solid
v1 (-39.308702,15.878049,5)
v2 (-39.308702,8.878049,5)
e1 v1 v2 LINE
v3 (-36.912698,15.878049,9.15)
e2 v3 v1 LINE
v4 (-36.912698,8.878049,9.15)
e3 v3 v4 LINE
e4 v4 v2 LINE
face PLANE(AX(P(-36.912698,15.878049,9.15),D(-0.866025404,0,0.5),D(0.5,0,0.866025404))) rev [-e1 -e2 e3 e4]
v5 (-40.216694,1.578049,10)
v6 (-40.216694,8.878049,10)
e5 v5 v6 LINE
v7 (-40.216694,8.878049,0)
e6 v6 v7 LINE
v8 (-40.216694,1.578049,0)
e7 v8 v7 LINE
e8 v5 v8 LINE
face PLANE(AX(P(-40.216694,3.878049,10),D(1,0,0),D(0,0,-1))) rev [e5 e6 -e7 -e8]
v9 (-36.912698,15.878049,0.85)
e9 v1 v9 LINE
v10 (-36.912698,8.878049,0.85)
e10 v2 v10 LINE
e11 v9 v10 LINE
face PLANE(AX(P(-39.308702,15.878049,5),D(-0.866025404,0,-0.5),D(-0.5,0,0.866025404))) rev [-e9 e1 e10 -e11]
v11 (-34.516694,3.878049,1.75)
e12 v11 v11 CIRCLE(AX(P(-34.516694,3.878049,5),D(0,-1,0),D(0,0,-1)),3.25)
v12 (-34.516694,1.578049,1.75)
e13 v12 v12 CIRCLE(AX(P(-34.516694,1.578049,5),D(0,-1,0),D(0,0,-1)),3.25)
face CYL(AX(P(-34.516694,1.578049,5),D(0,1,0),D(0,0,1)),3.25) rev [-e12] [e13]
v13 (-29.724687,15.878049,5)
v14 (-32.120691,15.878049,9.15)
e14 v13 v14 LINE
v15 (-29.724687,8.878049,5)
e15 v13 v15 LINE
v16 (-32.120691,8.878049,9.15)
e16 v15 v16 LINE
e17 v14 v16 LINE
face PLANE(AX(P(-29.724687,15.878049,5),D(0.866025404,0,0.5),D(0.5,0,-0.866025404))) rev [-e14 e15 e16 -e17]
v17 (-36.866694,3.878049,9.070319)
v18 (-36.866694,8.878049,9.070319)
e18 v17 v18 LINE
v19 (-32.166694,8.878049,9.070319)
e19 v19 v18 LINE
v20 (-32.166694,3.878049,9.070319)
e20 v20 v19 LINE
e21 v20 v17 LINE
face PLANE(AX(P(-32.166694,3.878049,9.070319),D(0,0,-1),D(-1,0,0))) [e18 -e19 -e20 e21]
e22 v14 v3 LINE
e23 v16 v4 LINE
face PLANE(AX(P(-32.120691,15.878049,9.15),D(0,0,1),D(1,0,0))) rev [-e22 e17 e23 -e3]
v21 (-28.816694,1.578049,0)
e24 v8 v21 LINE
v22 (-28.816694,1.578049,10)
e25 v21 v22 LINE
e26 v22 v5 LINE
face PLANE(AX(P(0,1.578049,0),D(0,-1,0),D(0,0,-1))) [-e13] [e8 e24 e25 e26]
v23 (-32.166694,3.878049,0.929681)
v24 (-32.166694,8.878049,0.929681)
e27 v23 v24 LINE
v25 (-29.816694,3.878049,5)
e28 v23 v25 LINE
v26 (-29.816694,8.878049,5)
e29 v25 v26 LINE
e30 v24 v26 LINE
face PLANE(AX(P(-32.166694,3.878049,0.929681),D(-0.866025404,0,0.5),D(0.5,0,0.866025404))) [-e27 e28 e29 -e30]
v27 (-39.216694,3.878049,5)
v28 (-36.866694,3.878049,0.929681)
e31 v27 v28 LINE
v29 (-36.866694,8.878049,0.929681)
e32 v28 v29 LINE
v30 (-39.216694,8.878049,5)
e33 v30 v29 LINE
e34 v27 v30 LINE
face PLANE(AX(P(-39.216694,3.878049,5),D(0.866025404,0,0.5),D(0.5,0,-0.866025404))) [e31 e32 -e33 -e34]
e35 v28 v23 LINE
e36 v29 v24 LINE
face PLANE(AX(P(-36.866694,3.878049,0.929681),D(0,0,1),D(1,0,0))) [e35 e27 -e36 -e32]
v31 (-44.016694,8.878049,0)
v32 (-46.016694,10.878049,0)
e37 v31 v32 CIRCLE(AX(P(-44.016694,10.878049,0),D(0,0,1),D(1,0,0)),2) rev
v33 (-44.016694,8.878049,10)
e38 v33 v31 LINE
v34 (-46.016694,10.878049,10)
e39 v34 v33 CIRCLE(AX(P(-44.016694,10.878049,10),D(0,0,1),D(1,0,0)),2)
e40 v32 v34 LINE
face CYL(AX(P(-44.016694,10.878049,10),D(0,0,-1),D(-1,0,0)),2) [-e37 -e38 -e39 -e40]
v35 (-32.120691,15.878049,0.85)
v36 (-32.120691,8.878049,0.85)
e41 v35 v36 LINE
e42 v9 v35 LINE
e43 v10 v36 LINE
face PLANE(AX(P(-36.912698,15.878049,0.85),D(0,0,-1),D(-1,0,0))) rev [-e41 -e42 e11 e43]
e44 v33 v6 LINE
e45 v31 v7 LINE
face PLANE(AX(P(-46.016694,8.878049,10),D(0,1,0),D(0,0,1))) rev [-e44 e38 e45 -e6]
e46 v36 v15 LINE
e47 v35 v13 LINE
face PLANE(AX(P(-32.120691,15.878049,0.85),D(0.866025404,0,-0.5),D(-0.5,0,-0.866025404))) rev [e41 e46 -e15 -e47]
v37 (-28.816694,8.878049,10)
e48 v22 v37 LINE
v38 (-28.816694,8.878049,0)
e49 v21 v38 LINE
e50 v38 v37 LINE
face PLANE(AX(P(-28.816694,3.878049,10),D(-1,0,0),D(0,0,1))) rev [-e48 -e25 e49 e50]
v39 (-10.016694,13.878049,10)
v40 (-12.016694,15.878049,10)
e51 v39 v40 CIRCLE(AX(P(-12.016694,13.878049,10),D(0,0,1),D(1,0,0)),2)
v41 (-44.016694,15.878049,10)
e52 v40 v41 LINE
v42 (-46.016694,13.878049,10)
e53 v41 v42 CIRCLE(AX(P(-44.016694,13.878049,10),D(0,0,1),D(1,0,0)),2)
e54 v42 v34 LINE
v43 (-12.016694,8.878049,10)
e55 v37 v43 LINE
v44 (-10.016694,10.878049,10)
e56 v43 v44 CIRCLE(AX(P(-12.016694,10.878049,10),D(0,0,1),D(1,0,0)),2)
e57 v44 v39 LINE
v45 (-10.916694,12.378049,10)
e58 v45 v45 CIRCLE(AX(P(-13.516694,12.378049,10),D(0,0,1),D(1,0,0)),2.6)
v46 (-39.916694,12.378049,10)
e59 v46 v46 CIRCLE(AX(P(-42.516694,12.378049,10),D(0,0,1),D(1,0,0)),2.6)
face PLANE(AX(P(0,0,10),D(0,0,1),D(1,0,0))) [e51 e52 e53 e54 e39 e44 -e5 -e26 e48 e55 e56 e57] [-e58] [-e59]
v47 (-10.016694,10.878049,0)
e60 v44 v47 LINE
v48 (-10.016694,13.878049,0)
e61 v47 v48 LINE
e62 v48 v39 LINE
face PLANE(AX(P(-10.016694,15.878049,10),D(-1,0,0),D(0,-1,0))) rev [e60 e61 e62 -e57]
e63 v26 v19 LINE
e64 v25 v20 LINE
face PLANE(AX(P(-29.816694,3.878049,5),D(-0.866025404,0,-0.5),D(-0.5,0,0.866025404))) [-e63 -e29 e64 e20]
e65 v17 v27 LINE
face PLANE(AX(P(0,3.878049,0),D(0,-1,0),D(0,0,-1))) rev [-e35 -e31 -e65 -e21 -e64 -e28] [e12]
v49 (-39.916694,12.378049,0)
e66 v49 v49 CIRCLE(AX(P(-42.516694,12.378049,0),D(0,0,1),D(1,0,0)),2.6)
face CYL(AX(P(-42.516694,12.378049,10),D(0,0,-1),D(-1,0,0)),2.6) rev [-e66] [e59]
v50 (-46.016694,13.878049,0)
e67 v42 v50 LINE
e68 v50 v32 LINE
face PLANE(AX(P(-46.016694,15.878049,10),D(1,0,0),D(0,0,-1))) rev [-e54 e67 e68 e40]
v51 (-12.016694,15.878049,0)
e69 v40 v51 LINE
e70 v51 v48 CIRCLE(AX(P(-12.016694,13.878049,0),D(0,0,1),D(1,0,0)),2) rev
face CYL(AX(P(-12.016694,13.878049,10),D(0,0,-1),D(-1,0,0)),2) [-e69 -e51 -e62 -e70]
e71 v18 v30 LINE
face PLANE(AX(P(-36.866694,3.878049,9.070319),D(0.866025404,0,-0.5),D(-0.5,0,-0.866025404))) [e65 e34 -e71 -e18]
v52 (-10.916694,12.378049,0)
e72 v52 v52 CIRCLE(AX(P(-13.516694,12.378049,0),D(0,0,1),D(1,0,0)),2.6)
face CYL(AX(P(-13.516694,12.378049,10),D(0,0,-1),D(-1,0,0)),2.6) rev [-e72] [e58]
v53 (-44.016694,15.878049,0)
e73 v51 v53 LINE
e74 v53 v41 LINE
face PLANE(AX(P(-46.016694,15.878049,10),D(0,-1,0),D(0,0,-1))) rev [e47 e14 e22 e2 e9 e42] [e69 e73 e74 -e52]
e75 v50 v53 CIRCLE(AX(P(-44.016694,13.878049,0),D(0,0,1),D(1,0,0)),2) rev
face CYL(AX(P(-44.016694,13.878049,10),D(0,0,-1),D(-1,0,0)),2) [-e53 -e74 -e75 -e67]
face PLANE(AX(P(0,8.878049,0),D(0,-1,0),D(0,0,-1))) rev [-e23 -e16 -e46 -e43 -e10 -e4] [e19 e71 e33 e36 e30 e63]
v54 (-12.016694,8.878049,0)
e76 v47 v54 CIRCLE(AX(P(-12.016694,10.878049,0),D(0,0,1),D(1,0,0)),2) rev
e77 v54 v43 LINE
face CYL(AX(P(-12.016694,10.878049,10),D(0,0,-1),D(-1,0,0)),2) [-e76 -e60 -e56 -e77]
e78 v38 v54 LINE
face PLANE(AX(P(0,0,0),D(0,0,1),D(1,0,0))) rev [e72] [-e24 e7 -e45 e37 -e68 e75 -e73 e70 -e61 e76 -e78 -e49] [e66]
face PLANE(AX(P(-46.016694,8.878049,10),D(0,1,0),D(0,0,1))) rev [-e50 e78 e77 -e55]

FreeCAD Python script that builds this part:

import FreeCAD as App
import Part
import Sketcher

V = App.Vector
Q = App.Units.Quantity


def edges_at(feature, points):
    """Names of the edges that pass closest to the given points."""
    edges = feature.Shape.Edges
    near = lambda p: min(range(len(edges)), key=lambda i: edges[i].distToShape(Part.Vertex(*p))[0])
    return sorted({f"Edge{near(p) + 1}" for p in points})


def add_polygon(sketch, points):
    """Adds a closed chain of lines whose ends are joined by coincident constraints."""
    first, n = sketch.GeometryCount, len(points)
    for a, b in zip(points, points[1:] + points[:1]):
        sketch.addGeometry(Part.LineSegment(App.Vector(*a, 0), App.Vector(*b, 0)), False)
    for i in range(n):
        sketch.addConstraint(Sketcher.Constraint("Coincident", first + i, 2, first + (i + 1) % n, 1))

doc = App.newDocument("Part")
params = doc.addObject("Spreadsheet::Sheet", "Params")
for row, (alias, value) in enumerate([
    ("sketch1_diameter", "5.2 mm"),
    ("sketch1_width", "36 mm"),
    ("sketch1_height", "7 mm"),
    ("pad1_length", "10 mm"),
    ("pocket1_length", "7 mm"),
    ("sketch3_height", "10 mm"),
    ("sketch3_width", "11.4 mm"),
    ("sketch3_width2", "4.7 mm"),
    ("pad2_length", "5 mm"),
    ("fillet_radius", "2 mm"),
    ("sketch4_diameter", "6.5 mm"),
    ("sketch4_height", "10 mm"),
    ("sketch4_width", "11.4 mm"),
    ("pad3_length", "2.3 mm"),
], start=1):
    params.set(f"A{row}", alias)
    params.set(f"B{row}", "=" + value)
    params.setAlias(f"B{row}", alias)

body = doc.addObject("PartDesign::Body", "Body")

sketch1 = doc.addObject("Sketcher::SketchObject", "Sketch")
body.addObject(sketch1)
sketch1.AttachmentSupport = (doc.XY_Plane, [""])
sketch1.MapMode = "FlatFace"
add_polygon(sketch1, [(-46, 15.9), (-46, 8.9), (-10, 8.9), (-10, 15.9)])
sketch1.addGeometry(Part.Circle(V(-42.5, 12.4, 0), V(0, 0, 1), 2.6), False)
sketch1.addGeometry(Part.Circle(V(-13.5, 12.4, 0), V(0, 0, 1), 2.6), False)
sketch1.addConstraint([
    Sketcher.Constraint("Vertical", 0),
    Sketcher.Constraint("Horizontal", 1),
    Sketcher.Constraint("Vertical", 2),
    Sketcher.Constraint("Horizontal", 3),
    Sketcher.Constraint("Equal", 4, 5),
    Sketcher.Constraint("Horizontal", 4, 3, 5, 3),
    Sketcher.Constraint("Diameter", 4, Q("5.2 mm")),
    Sketcher.Constraint("DistanceX", 1, 1, 1, 2, Q("36 mm")),
    Sketcher.Constraint("DistanceY", 0, 2, 0, 1, Q("7 mm")),
    Sketcher.Constraint("DistanceX", 4, 3, 5, 3, Q("29 mm")),
    Sketcher.Constraint("DistanceX", 0, 2, 4, 3, Q("3.5 mm")),
    Sketcher.Constraint("DistanceY", 0, 2, 4, 3, Q("3.5 mm")),
    Sketcher.Constraint("DistanceY", -1, 1, 4, 3, Q("12.378049 mm")),
    Sketcher.Constraint("DistanceX", 4, 3, -1, 1, Q("42.516694 mm")),
])
sketch1.setExpression("Constraints[10]", "Params.sketch1_diameter")
sketch1.setExpression("Constraints[11]", "Params.sketch1_width")
sketch1.setExpression("Constraints[12]", "Params.sketch1_height")
pad1 = doc.addObject("PartDesign::Pad", "Pad")
body.addObject(pad1)
pad1.Profile = sketch1
pad1.setExpression("Length", "Params.pad1_length")

sketch2 = doc.addObject("Sketcher::SketchObject", "Sketch001")
body.addObject(sketch2)
sketch2.AttachmentSupport = (doc.XZ_Plane, [""])
sketch2.MapMode = "FlatFace"
sketch2.AttachmentOffset = App.Placement(V(0, 0, -8.878049), App.Rotation())
add_polygon(sketch2, [(-29.7, 5), (-32.1, 9.2), (-36.9, 9.2), (-39.3, 5), (-36.9, 0.8), (-32.1, 0.8)])
sketch2.addConstraint([
    Sketcher.Constraint("Horizontal", 1),
    Sketcher.Constraint("Horizontal", 4),
    Sketcher.Constraint("Parallel", 0, 3),
    Sketcher.Constraint("Parallel", 2, 5),
    Sketcher.Constraint("Horizontal", 2, 2, 5, 2),
    Sketcher.Constraint("Vertical", 1, 2, 3, 2),
    Sketcher.Constraint("Vertical", 0, 2, 4, 2),
    Sketcher.Constraint("Angle", 0, Q("120 deg")),
    Sketcher.Constraint("DistanceY", -1, 1, 2, 2, Q("5 mm")),
    Sketcher.Constraint("DistanceY", 3, 2, 1, 2, Q("8.3 mm")),
    Sketcher.Constraint("DistanceX", 1, 2, -1, 1, Q("36.912698 mm")),
    Sketcher.Constraint("DistanceX", 1, 2, 1, 1, Q("4.792007 mm")),
])
pocket1 = doc.addObject("PartDesign::Pocket", "Pocket")
body.addObject(pocket1)
pocket1.Profile = sketch2
pocket1.setExpression("Length", "Params.pocket1_length")

sketch3 = doc.addObject("Sketcher::SketchObject", "Sketch002")
body.addObject(sketch3)
sketch3.AttachmentSupport = (doc.XZ_Plane, [""])
sketch3.MapMode = "FlatFace"
sketch3.AttachmentOffset = App.Placement(V(0, 0, -8.878049), App.Rotation())
add_polygon(sketch3, [(-40.2, 10), (-40.2, 0), (-28.8, 0), (-28.8, 10)])
add_polygon(sketch3, [(-32.2, 9.1), (-29.8, 5), (-32.2, 0.9), (-36.9, 0.9), (-39.2, 5), (-36.9, 9.1)])
sketch3.addConstraint([
    Sketcher.Constraint("Vertical", 0),
    Sketcher.Constraint("Horizontal", 1),
    Sketcher.Constraint("Vertical", 2),
    Sketcher.Constraint("Horizontal", 3),
    Sketcher.Constraint("Horizontal", 6),
    Sketcher.Constraint("Horizontal", 9),
    Sketcher.Constraint("PointOnObject", 0, 2, -1),
    Sketcher.Constraint("Parallel", 4, 7),
    Sketcher.Constraint("Parallel", 5, 8),
    Sketcher.Constraint("Horizontal", 4, 2, 7, 2),
    Sketcher.Constraint("Vertical", 6, 2, 8, 2),
    Sketcher.Constraint("Vertical", 5, 2, 9, 2),
    Sketcher.Constraint("DistanceY", 0, 2, 0, 1, Q("10 mm")),
    Sketcher.Constraint("Angle", 4, Q("-60 deg")),
    Sketcher.Constraint("DistanceX", 1, 1, 1, 2, Q("11.4 mm")),
    Sketcher.Constraint("DistanceX", 6, 2, 6, 1, Q("4.7 mm")),
    Sketcher.Constraint("DistanceY", -1, 1, 4, 2, Q("5 mm")),
    Sketcher.Constraint("DistanceX", 4, 2, 1, 2, Q("1 mm")),
    Sketcher.Constraint("DistanceX", 0, 2, 7, 2, Q("1 mm")),
    Sketcher.Constraint("DistanceX", 0, 2, -1, 1, Q("40.216694 mm")),
])
sketch3.setExpression("Constraints[22]", "Params.sketch3_height")
sketch3.setExpression("Constraints[24]", "Params.sketch3_width")
sketch3.setExpression("Constraints[25]", "Params.sketch3_width2")
pad2 = doc.addObject("PartDesign::Pad", "Pad001")
body.addObject(pad2)
pad2.Profile = sketch3
pad2.setExpression("Length", "Params.pad2_length")
doc.recompute()

fillet = doc.addObject("PartDesign::Fillet", "Fillet")
body.addObject(fillet)
fillet.Base = (pad2, edges_at(pad2, [
    (-10.017, 15.878, 5),
    (-10.017, 8.878, 5),
    (-46.017, 8.878, 5),
    (-46.017, 15.878, 5),
]))
fillet.setExpression("Radius", "Params.fillet_radius")

sketch4 = doc.addObject("Sketcher::SketchObject", "Sketch003")
body.addObject(sketch4)
sketch4.AttachmentSupport = (doc.XZ_Plane, [""])
sketch4.MapMode = "FlatFace"
sketch4.AttachmentOffset = App.Placement(V(0, 0, -3.878049), App.Rotation())
add_polygon(sketch4, [(-40.2, 10), (-40.2, 0), (-28.8, 0), (-28.8, 10)])
sketch4.addGeometry(Part.Circle(V(-34.5, 5, 0), V(0, 0, 1), 3.2), False)
sketch4.addConstraint([
    Sketcher.Constraint("Vertical", 0),
    Sketcher.Constraint("Horizontal", 1),
    Sketcher.Constraint("Vertical", 2),
    Sketcher.Constraint("Horizontal", 3),
    Sketcher.Constraint("PointOnObject", 0, 2, -1),
    Sketcher.Constraint("Diameter", 4, Q("6.5 mm")),
    Sketcher.Constraint("DistanceY", 0, 2, 0, 1, Q("10 mm")),
    Sketcher.Constraint("DistanceX", 1, 1, 1, 2, Q("11.4 mm")),
    Sketcher.Constraint("DistanceY", -1, 1, 4, 3, Q("5 mm")),
    Sketcher.Constraint("DistanceX", 0, 2, 4, 3, Q("5.7 mm")),
    Sketcher.Constraint("DistanceX", 4, 3, -1, 1, Q("34.516694 mm")),
])
sketch4.setExpression("Constraints[9]", "Params.sketch4_diameter")
sketch4.setExpression("Constraints[10]", "Params.sketch4_height")
sketch4.setExpression("Constraints[11]", "Params.sketch4_width")
pad3 = doc.addObject("PartDesign::Pad", "Pad002")
body.addObject(pad3)
pad3.Profile = sketch4
pad3.setExpression("Length", "Params.pad3_length")

doc.recompute()
